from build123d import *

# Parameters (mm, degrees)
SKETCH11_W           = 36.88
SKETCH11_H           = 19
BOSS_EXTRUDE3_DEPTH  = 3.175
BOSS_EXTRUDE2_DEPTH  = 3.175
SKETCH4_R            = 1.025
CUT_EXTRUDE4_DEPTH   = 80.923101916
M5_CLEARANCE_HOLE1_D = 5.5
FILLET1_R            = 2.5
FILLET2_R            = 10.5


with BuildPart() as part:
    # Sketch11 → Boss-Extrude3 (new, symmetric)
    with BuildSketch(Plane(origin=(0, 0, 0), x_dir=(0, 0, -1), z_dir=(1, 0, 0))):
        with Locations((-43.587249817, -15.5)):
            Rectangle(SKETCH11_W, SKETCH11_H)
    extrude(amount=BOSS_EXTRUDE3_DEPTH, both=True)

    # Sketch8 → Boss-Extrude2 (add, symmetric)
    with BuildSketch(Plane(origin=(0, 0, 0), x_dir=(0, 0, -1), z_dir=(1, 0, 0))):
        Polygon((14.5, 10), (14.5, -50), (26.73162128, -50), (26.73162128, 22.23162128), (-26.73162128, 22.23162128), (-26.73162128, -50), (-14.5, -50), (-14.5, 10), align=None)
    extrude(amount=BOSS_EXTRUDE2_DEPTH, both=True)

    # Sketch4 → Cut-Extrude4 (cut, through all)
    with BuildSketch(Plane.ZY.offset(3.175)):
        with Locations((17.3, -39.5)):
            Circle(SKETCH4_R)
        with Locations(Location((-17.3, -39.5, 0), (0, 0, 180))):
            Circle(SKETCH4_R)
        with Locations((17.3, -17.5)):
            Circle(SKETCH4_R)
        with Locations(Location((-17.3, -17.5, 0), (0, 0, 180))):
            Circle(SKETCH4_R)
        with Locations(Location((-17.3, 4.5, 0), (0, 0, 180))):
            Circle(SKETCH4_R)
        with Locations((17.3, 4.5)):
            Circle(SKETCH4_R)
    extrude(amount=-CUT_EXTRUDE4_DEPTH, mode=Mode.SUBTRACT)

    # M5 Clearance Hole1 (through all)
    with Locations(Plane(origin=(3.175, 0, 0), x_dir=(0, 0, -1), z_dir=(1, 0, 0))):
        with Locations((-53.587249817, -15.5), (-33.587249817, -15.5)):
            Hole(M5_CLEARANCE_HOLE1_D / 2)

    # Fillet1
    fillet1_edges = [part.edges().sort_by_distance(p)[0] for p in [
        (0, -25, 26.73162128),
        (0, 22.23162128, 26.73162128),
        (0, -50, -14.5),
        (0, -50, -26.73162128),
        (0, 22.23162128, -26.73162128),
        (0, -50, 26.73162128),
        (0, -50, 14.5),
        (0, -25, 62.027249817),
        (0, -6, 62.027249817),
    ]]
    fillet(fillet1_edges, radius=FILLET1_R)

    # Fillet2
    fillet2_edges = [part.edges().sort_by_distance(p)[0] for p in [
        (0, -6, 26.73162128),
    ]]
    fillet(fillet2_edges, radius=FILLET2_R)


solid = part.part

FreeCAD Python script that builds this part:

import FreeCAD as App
import Part
import Sketcher

V = App.Vector
Q = App.Units.Quantity


def edges_at(feature, points):
    """Names of the edges that pass closest to the given points."""
    edges = feature.Shape.Edges
    near = lambda p: min(range(len(edges)), key=lambda i: edges[i].distToShape(Part.Vertex(*p))[0])
    return sorted({f"Edge{near(p) + 1}" for p in points})


def add_polygon(sketch, points):
    """Adds a closed chain of lines whose ends are joined by coincident constraints."""
    first, n = sketch.GeometryCount, len(points)
    for a, b in zip(points, points[1:] + points[:1]):
        sketch.addGeometry(Part.LineSegment(App.Vector(*a, 0), App.Vector(*b, 0)), False)
    for i in range(n):
        sketch.addConstraint(Sketcher.Constraint("Coincident", first + i, 2, first + (i + 1) % n, 1))

doc = App.newDocument("Part")
body = doc.addObject("PartDesign::Body", "Body")

# Sketch on YZ plane
sketch1 = doc.addObject("Sketcher::SketchObject", "Sketch")
body.addObject(sketch1)
sketch1.AttachmentSupport = (doc.YZ_Plane, [""])
sketch1.MapMode = "FlatFace"
add_polygon(sketch1, [(-6, 62), (-25, 62), (-25, 25), (-6, 25)])  # lines 0-3
sketch1.addConstraint(Sketcher.Constraint("Horizontal", 0))
sketch1.addConstraint(Sketcher.Constraint("Vertical", 1))
sketch1.addConstraint(Sketcher.Constraint("Horizontal", 2))
sketch1.addConstraint(Sketcher.Constraint("Vertical", 3))
sketch1.addConstraint(Sketcher.Constraint("DistanceX", 0, 2, 0, 1, Q("19 mm")))
sketch1.addConstraint(Sketcher.Constraint("DistanceX", 0, 2, -1, 1, Q("25 mm")))
sketch1.addConstraint(Sketcher.Constraint("DistanceY", 1, 2, 1, 1, Q("36.88 mm")))
sketch1.addConstraint(Sketcher.Constraint("DistanceY", -1, 1, 0, 2, Q("62.02725 mm")))
pad1 = doc.addObject("PartDesign::Pad", "Pad")
body.addObject(pad1)
pad1.Profile = sketch1
pad1.Length = 6.35
pad1.Midplane = True

# Sketch on YZ plane
sketch2 = doc.addObject("Sketcher::SketchObject", "Sketch001")
body.addObject(sketch2)
sketch2.AttachmentSupport = (doc.YZ_Plane, [""])
sketch2.MapMode = "FlatFace"
add_polygon(sketch2, [(10, -14), (-50, -14), (-50, -27), (22, -27), (22, 27), (-50, 27), (-50, 14), (10, 14)])  # lines 0-7
sketch2.addConstraint(Sketcher.Constraint("Horizontal", 0))
sketch2.addConstraint(Sketcher.Constraint("Vertical", 1))
sketch2.addConstraint(Sketcher.Constraint("Horizontal", 2))
sketch2.addConstraint(Sketcher.Constraint("Vertical", 3))
sketch2.addConstraint(Sketcher.Constraint("Horizontal", 4))
sketch2.addConstraint(Sketcher.Constraint("Vertical", 5))
sketch2.addConstraint(Sketcher.Constraint("Horizontal", 6))
sketch2.addConstraint(Sketcher.Constraint("Vertical", 7))
sketch2.addConstraint(Sketcher.Constraint("Symmetric", 1, 2, 4, 2, -1))
sketch2.addConstraint(Sketcher.Constraint("Equal", 1, 5))
sketch2.addConstraint(Sketcher.Constraint("DistanceX", 0, 2, 0, 1, Q("60 mm")))
sketch2.addConstraint(Sketcher.Constraint("DistanceY", 7, 2, 7, 1, Q("29 mm")))
sketch2.addConstraint(Sketcher.Constraint("DistanceX", 0, 2, -1, 1, Q("50 mm")))
sketch2.addConstraint(Sketcher.Constraint("DistanceX", 2, 1, 2, 2, Q("72.231621 mm")))
sketch2.addConstraint(Sketcher.Constraint("DistanceY", 1, 2, 1, 1, Q("12.231621 mm")))
pad2 = doc.addObject("PartDesign::Pad", "Pad001")
body.addObject(pad2)
pad2.Profile = sketch2
pad2.Length = 6.35
pad2.Midplane = True

# Sketch on YZ plane
sketch3 = doc.addObject("Sketcher::SketchObject", "Sketch002")
body.addObject(sketch3)
sketch3.AttachmentSupport = (doc.YZ_Plane, [""])
sketch3.MapMode = "FlatFace"
sketch3.AttachmentOffset = App.Placement(V(0, 0, -3.175), App.Rotation())
sketch3.addGeometry(Part.Circle(V(-39.5, 17.3, 0), V(0, 0, 1), 1), False)
sketch3.addGeometry(Part.Circle(V(-39.5, -17.3, 0), V(0, 0, 1), 1), False)
sketch3.addGeometry(Part.Circle(V(-17.5, 17.3, 0), V(0, 0, 1), 1), False)
sketch3.addGeometry(Part.Circle(V(-17.5, -17.3, 0), V(0, 0, 1), 1), False)
sketch3.addGeometry(Part.Circle(V(4.5, -17.3, 0), V(0, 0, 1), 1), False)
sketch3.addGeometry(Part.Circle(V(4.5, 17.3, 0), V(0, 0, 1), 1), False)
sketch3.addConstraint(Sketcher.Constraint("Equal", 0, 1))
sketch3.addConstraint(Sketcher.Constraint("Equal", 1, 2))
sketch3.addConstraint(Sketcher.Constraint("Equal", 2, 3))
sketch3.addConstraint(Sketcher.Constraint("Equal", 3, 4))
sketch3.addConstraint(Sketcher.Constraint("Equal", 4, 5))
sketch3.addConstraint(Sketcher.Constraint("Symmetric", 0, 3, 1, 3, -1))
sketch3.addConstraint(Sketcher.Constraint("Symmetric", 2, 3, 3, 3, -1))
sketch3.addConstraint(Sketcher.Constraint("Symmetric", 4, 3, 5, 3, -1))
sketch3.addConstraint(Sketcher.Constraint("Horizontal", 0, 3, 2, 3))
sketch3.addConstraint(Sketcher.Constraint("Horizontal", 3, 3, 4, 3))
sketch3.addConstraint(Sketcher.Constraint("Diameter", 0, Q("2.05 mm")))
sketch3.addConstraint(Sketcher.Constraint("DistanceX", 0, 3, 2, 3, Q("22 mm")))
sketch3.addConstraint(Sketcher.Constraint("DistanceX", 3, 3, 4, 3, Q("22 mm")))
sketch3.addConstraint(Sketcher.Constraint("DistanceX", 0, 3, -1, 1, Q("39.5 mm")))
sketch3.addConstraint(Sketcher.Constraint("DistanceY", -1, 1, 0, 3, Q("17.3 mm")))
pocket1 = doc.addObject("PartDesign::Pocket", "Pocket")
body.addObject(pocket1)
pocket1.Profile = sketch3
pocket1.Type = "ThroughAll"
pocket1.Reversed = True

# Sketch on YZ plane
sketch4 = doc.addObject("Sketcher::SketchObject", "Sketch003")
body.addObject(sketch4)
sketch4.AttachmentSupport = (doc.YZ_Plane, [""])
sketch4.MapMode = "FlatFace"
sketch4.AttachmentOffset = App.Placement(V(0, 0, 3.175), App.Rotation())
sketch4.addGeometry(Part.Circle(V(-15.5, 53.6, 0), V(0, 0, 1), 2.8), False)
sketch4.addGeometry(Part.Circle(V(-15.5, 33.6, 0), V(0, 0, 1), 2.8), False)
sketch4.addConstraint(Sketcher.Constraint("Equal", 0, 1))
sketch4.addConstraint(Sketcher.Constraint("Vertical", 0, 3, 1, 3))
sketch4.addConstraint(Sketcher.Constraint("Diameter", 0, Q("5.5 mm")))
sketch4.addConstraint(Sketcher.Constraint("DistanceY", 1, 3, 0, 3, Q("20 mm")))
sketch4.addConstraint(Sketcher.Constraint("DistanceX", 0, 3, -1, 1, Q("15.5 mm")))
sketch4.addConstraint(Sketcher.Constraint("DistanceY", -1, 1, 0, 3, Q("53.58725 mm")))
doc.recompute()
hole = doc.addObject("PartDesign::Hole", "Hole")
body.addObject(hole)
hole.Profile = sketch4
hole.ThreadType = "None"
hole.Diameter = 5.5
hole.DepthType = "ThroughAll"
doc.recompute()

fillet = doc.addObject("PartDesign::Fillet", "Fillet")
body.addObject(fillet)
fillet.Base = (hole, edges_at(hole, [
    (0, -25, 26.732),
    (0, 22.232, 26.732),
    (0, -50, -14.5),
    (0, -50, -26.732),
    (0, 22.232, -26.732),
    (0, -50, 26.732),
    (0, -50, 14.5),
    (0, -25, 62.027),
    (0, -6, 62.027),
]))
fillet.Radius = 2.5
doc.recompute()

fillet2 = doc.addObject("PartDesign::Fillet", "Fillet001")
body.addObject(fillet2)
fillet2.Base = (fillet, edges_at(fillet, [(0, -6, 26.732)]))
fillet2.Radius = 10.5

doc.recompute()
